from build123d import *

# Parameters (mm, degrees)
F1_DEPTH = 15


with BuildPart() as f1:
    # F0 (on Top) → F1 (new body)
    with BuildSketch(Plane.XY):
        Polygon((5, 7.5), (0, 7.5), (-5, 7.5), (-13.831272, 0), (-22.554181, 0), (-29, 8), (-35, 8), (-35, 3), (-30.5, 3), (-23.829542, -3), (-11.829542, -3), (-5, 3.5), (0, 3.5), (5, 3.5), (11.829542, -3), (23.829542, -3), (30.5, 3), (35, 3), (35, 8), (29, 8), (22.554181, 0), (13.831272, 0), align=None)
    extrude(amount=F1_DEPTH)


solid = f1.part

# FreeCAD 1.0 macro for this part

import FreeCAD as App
import Part
import Sketcher

V = App.Vector

doc = App.newDocument("Part")
params = doc.addObject("Spreadsheet::Sheet", "Params")
for row, (alias, value) in enumerate([
    ("sketch1_width", "10 mm"),
    ("sketch1_width2", "6 mm"),
    ("sketch1_width3", "12 mm"),
    ("sketch1_height", "5 mm"),
    ("sketch1_width4", "4.5 mm"),
    ("pad1_length", "15 mm"),
], start=1):
    params.set(f"A{row}", alias)
    params.set(f"B{row}", "=" + value)
    params.setAlias(f"B{row}", alias)

body = doc.addObject("PartDesign::Body", "Body")

sketch1 = body.newObject("Sketcher::SketchObject", "Sketch")
sketch1.AttachmentSupport = (doc.getObject("XY_Plane"), [""])
sketch1.MapMode = "FlatFace"
sketch1.addGeometry([
    Part.LineSegment(V(5, 7.5, 0), V(-5, 7.5, 0)),
    Part.LineSegment(V(-5, 7.5, 0), V(-13.831272, 0, 0)),
    Part.LineSegment(V(-13.831272, 0, 0), V(-22.554181, 0, 0)),
    Part.LineSegment(V(-22.554181, 0, 0), V(-29, 8, 0)),
    Part.LineSegment(V(-29, 8, 0), V(-35, 8, 0)),
    Part.LineSegment(V(-35, 8, 0), V(-35, 3, 0)),
    Part.LineSegment(V(-35, 3, 0), V(-30.5, 3, 0)),
    Part.LineSegment(V(-30.5, 3, 0), V(-23.829542, -3, 0)),
    Part.LineSegment(V(-23.829542, -3, 0), V(-11.829542, -3, 0)),
    Part.LineSegment(V(-11.829542, -3, 0), V(-5, 3.5, 0)),
    Part.LineSegment(V(-5, 3.5, 0), V(5, 3.5, 0)),
    Part.LineSegment(V(5, 3.5, 0), V(11.829542, -3, 0)),
    Part.LineSegment(V(11.829542, -3, 0), V(23.829542, -3, 0)),
    Part.LineSegment(V(23.829542, -3, 0), V(30.5, 3, 0)),
    Part.LineSegment(V(30.5, 3, 0), V(35, 3, 0)),
    Part.LineSegment(V(35, 3, 0), V(35, 8, 0)),
    Part.LineSegment(V(35, 8, 0), V(29, 8, 0)),
    Part.LineSegment(V(29, 8, 0), V(22.554181, 0, 0)),
    Part.LineSegment(V(22.554181, 0, 0), V(13.831272, 0, 0)),
    Part.LineSegment(V(13.831272, 0, 0), V(5, 7.5, 0)),
], False)
sketch1.addConstraint([
    Sketcher.Constraint("Coincident", 0, 2, 1, 1),
    Sketcher.Constraint("Coincident", 1, 2, 2, 1),
    Sketcher.Constraint("Coincident", 2, 2, 3, 1),
    Sketcher.Constraint("Coincident", 3, 2, 4, 1),
    Sketcher.Constraint("Coincident", 4, 2, 5, 1),
    Sketcher.Constraint("Coincident", 5, 2, 6, 1),
    Sketcher.Constraint("Coincident", 6, 2, 7, 1),
    Sketcher.Constraint("Coincident", 7, 2, 8, 1),
    Sketcher.Constraint("Coincident", 8, 2, 9, 1),
    Sketcher.Constraint("Coincident", 9, 2, 10, 1),
    Sketcher.Constraint("Coincident", 10, 2, 11, 1),
    Sketcher.Constraint("Coincident", 11, 2, 12, 1),
    Sketcher.Constraint("Coincident", 12, 2, 13, 1),
    Sketcher.Constraint("Coincident", 13, 2, 14, 1),
    Sketcher.Constraint("Coincident", 14, 2, 15, 1),
    Sketcher.Constraint("Coincident", 15, 2, 16, 1),
    Sketcher.Constraint("Coincident", 16, 2, 17, 1),
    Sketcher.Constraint("Coincident", 17, 2, 18, 1),
    Sketcher.Constraint("Coincident", 18, 2, 19, 1),
    Sketcher.Constraint("Coincident", 19, 2, 0, 1),
    Sketcher.Constraint("Horizontal", 0),
    Sketcher.Constraint("Horizontal", 2),
    Sketcher.Constraint("Horizontal", 4),
    Sketcher.Constraint("Vertical", 5),
    Sketcher.Constraint("Horizontal", 6),
    Sketcher.Constraint("Horizontal", 8),
    Sketcher.Constraint("Horizontal", 10),
    Sketcher.Constraint("Horizontal", 12),
    Sketcher.Constraint("Horizontal", 14),
    Sketcher.Constraint("Vertical", 15),
    Sketcher.Constraint("Horizontal", 16),
    Sketcher.Constraint("Horizontal", 18),
    Sketcher.Constraint("Symmetric", 2, 2, 17, 2, -1, 1),
    Sketcher.Constraint("Symmetric", 8, 2, 11, 2, -2),
    Sketcher.Constraint("Symmetric", 6, 2, 13, 2, -2),
    Sketcher.Constraint("Symmetric", 4, 2, 15, 2, -2),
    Sketcher.Constraint("Symmetric", 1, 2, 18, 2, -2),
    Sketcher.Constraint("Vertical", 0, 2, 9, 2),
    Sketcher.Constraint("Vertical", 10, 2, 19, 2),
    Sketcher.Constraint("Equal", 8, 12),
    Sketcher.Constraint("Equal", 4, 16),
    Sketcher.Constraint("Equal", 9, 11),
    Sketcher.Constraint("DistanceX", 0, 2, 0, 1, 10.0),
    Sketcher.Constraint("DistanceX", 4, 2, 4, 1, 6.0),
    Sketcher.Constraint("DistanceX", 8, 1, 8, 2, 12.0),
    Sketcher.Constraint("DistanceY", 5, 2, 5, 1, 5.0),
    Sketcher.Constraint("DistanceX", 6, 1, 6, 2, 4.5),
    Sketcher.Constraint("DistanceX", 3, 2, -1, 1, 29.0),
    Sketcher.Constraint("DistanceY", -1, 1, 3, 2, 8.0),
    Sketcher.Constraint("DistanceY", 7, 2, -1, 1, 3.0),
    Sketcher.Constraint("DistanceY", 9, 2, 0, 2, 4.0),
    Sketcher.Constraint("DistanceY", -1, 1, 0, 2, 7.5),
    Sketcher.Constraint("Distance", 7, 8.971901),
    Sketcher.Constraint("DistanceX", 2, 2, 2, 1, 8.722909),
    Sketcher.Constraint("DistanceX", 2, 2, -1, 1, 22.554181),
])
sketch1.setExpression("Constraints[42]", "Params.sketch1_width")
sketch1.setExpression("Constraints[43]", "Params.sketch1_width2")
sketch1.setExpression("Constraints[44]", "Params.sketch1_width3")
sketch1.setExpression("Constraints[45]", "Params.sketch1_height")
sketch1.setExpression("Constraints[46]", "Params.sketch1_width4")
pad1 = body.newObject("PartDesign::Pad", "Pad")
pad1.Profile = sketch1
pad1.setExpression("Length", "Params.pad1_length")

doc.recompute()
